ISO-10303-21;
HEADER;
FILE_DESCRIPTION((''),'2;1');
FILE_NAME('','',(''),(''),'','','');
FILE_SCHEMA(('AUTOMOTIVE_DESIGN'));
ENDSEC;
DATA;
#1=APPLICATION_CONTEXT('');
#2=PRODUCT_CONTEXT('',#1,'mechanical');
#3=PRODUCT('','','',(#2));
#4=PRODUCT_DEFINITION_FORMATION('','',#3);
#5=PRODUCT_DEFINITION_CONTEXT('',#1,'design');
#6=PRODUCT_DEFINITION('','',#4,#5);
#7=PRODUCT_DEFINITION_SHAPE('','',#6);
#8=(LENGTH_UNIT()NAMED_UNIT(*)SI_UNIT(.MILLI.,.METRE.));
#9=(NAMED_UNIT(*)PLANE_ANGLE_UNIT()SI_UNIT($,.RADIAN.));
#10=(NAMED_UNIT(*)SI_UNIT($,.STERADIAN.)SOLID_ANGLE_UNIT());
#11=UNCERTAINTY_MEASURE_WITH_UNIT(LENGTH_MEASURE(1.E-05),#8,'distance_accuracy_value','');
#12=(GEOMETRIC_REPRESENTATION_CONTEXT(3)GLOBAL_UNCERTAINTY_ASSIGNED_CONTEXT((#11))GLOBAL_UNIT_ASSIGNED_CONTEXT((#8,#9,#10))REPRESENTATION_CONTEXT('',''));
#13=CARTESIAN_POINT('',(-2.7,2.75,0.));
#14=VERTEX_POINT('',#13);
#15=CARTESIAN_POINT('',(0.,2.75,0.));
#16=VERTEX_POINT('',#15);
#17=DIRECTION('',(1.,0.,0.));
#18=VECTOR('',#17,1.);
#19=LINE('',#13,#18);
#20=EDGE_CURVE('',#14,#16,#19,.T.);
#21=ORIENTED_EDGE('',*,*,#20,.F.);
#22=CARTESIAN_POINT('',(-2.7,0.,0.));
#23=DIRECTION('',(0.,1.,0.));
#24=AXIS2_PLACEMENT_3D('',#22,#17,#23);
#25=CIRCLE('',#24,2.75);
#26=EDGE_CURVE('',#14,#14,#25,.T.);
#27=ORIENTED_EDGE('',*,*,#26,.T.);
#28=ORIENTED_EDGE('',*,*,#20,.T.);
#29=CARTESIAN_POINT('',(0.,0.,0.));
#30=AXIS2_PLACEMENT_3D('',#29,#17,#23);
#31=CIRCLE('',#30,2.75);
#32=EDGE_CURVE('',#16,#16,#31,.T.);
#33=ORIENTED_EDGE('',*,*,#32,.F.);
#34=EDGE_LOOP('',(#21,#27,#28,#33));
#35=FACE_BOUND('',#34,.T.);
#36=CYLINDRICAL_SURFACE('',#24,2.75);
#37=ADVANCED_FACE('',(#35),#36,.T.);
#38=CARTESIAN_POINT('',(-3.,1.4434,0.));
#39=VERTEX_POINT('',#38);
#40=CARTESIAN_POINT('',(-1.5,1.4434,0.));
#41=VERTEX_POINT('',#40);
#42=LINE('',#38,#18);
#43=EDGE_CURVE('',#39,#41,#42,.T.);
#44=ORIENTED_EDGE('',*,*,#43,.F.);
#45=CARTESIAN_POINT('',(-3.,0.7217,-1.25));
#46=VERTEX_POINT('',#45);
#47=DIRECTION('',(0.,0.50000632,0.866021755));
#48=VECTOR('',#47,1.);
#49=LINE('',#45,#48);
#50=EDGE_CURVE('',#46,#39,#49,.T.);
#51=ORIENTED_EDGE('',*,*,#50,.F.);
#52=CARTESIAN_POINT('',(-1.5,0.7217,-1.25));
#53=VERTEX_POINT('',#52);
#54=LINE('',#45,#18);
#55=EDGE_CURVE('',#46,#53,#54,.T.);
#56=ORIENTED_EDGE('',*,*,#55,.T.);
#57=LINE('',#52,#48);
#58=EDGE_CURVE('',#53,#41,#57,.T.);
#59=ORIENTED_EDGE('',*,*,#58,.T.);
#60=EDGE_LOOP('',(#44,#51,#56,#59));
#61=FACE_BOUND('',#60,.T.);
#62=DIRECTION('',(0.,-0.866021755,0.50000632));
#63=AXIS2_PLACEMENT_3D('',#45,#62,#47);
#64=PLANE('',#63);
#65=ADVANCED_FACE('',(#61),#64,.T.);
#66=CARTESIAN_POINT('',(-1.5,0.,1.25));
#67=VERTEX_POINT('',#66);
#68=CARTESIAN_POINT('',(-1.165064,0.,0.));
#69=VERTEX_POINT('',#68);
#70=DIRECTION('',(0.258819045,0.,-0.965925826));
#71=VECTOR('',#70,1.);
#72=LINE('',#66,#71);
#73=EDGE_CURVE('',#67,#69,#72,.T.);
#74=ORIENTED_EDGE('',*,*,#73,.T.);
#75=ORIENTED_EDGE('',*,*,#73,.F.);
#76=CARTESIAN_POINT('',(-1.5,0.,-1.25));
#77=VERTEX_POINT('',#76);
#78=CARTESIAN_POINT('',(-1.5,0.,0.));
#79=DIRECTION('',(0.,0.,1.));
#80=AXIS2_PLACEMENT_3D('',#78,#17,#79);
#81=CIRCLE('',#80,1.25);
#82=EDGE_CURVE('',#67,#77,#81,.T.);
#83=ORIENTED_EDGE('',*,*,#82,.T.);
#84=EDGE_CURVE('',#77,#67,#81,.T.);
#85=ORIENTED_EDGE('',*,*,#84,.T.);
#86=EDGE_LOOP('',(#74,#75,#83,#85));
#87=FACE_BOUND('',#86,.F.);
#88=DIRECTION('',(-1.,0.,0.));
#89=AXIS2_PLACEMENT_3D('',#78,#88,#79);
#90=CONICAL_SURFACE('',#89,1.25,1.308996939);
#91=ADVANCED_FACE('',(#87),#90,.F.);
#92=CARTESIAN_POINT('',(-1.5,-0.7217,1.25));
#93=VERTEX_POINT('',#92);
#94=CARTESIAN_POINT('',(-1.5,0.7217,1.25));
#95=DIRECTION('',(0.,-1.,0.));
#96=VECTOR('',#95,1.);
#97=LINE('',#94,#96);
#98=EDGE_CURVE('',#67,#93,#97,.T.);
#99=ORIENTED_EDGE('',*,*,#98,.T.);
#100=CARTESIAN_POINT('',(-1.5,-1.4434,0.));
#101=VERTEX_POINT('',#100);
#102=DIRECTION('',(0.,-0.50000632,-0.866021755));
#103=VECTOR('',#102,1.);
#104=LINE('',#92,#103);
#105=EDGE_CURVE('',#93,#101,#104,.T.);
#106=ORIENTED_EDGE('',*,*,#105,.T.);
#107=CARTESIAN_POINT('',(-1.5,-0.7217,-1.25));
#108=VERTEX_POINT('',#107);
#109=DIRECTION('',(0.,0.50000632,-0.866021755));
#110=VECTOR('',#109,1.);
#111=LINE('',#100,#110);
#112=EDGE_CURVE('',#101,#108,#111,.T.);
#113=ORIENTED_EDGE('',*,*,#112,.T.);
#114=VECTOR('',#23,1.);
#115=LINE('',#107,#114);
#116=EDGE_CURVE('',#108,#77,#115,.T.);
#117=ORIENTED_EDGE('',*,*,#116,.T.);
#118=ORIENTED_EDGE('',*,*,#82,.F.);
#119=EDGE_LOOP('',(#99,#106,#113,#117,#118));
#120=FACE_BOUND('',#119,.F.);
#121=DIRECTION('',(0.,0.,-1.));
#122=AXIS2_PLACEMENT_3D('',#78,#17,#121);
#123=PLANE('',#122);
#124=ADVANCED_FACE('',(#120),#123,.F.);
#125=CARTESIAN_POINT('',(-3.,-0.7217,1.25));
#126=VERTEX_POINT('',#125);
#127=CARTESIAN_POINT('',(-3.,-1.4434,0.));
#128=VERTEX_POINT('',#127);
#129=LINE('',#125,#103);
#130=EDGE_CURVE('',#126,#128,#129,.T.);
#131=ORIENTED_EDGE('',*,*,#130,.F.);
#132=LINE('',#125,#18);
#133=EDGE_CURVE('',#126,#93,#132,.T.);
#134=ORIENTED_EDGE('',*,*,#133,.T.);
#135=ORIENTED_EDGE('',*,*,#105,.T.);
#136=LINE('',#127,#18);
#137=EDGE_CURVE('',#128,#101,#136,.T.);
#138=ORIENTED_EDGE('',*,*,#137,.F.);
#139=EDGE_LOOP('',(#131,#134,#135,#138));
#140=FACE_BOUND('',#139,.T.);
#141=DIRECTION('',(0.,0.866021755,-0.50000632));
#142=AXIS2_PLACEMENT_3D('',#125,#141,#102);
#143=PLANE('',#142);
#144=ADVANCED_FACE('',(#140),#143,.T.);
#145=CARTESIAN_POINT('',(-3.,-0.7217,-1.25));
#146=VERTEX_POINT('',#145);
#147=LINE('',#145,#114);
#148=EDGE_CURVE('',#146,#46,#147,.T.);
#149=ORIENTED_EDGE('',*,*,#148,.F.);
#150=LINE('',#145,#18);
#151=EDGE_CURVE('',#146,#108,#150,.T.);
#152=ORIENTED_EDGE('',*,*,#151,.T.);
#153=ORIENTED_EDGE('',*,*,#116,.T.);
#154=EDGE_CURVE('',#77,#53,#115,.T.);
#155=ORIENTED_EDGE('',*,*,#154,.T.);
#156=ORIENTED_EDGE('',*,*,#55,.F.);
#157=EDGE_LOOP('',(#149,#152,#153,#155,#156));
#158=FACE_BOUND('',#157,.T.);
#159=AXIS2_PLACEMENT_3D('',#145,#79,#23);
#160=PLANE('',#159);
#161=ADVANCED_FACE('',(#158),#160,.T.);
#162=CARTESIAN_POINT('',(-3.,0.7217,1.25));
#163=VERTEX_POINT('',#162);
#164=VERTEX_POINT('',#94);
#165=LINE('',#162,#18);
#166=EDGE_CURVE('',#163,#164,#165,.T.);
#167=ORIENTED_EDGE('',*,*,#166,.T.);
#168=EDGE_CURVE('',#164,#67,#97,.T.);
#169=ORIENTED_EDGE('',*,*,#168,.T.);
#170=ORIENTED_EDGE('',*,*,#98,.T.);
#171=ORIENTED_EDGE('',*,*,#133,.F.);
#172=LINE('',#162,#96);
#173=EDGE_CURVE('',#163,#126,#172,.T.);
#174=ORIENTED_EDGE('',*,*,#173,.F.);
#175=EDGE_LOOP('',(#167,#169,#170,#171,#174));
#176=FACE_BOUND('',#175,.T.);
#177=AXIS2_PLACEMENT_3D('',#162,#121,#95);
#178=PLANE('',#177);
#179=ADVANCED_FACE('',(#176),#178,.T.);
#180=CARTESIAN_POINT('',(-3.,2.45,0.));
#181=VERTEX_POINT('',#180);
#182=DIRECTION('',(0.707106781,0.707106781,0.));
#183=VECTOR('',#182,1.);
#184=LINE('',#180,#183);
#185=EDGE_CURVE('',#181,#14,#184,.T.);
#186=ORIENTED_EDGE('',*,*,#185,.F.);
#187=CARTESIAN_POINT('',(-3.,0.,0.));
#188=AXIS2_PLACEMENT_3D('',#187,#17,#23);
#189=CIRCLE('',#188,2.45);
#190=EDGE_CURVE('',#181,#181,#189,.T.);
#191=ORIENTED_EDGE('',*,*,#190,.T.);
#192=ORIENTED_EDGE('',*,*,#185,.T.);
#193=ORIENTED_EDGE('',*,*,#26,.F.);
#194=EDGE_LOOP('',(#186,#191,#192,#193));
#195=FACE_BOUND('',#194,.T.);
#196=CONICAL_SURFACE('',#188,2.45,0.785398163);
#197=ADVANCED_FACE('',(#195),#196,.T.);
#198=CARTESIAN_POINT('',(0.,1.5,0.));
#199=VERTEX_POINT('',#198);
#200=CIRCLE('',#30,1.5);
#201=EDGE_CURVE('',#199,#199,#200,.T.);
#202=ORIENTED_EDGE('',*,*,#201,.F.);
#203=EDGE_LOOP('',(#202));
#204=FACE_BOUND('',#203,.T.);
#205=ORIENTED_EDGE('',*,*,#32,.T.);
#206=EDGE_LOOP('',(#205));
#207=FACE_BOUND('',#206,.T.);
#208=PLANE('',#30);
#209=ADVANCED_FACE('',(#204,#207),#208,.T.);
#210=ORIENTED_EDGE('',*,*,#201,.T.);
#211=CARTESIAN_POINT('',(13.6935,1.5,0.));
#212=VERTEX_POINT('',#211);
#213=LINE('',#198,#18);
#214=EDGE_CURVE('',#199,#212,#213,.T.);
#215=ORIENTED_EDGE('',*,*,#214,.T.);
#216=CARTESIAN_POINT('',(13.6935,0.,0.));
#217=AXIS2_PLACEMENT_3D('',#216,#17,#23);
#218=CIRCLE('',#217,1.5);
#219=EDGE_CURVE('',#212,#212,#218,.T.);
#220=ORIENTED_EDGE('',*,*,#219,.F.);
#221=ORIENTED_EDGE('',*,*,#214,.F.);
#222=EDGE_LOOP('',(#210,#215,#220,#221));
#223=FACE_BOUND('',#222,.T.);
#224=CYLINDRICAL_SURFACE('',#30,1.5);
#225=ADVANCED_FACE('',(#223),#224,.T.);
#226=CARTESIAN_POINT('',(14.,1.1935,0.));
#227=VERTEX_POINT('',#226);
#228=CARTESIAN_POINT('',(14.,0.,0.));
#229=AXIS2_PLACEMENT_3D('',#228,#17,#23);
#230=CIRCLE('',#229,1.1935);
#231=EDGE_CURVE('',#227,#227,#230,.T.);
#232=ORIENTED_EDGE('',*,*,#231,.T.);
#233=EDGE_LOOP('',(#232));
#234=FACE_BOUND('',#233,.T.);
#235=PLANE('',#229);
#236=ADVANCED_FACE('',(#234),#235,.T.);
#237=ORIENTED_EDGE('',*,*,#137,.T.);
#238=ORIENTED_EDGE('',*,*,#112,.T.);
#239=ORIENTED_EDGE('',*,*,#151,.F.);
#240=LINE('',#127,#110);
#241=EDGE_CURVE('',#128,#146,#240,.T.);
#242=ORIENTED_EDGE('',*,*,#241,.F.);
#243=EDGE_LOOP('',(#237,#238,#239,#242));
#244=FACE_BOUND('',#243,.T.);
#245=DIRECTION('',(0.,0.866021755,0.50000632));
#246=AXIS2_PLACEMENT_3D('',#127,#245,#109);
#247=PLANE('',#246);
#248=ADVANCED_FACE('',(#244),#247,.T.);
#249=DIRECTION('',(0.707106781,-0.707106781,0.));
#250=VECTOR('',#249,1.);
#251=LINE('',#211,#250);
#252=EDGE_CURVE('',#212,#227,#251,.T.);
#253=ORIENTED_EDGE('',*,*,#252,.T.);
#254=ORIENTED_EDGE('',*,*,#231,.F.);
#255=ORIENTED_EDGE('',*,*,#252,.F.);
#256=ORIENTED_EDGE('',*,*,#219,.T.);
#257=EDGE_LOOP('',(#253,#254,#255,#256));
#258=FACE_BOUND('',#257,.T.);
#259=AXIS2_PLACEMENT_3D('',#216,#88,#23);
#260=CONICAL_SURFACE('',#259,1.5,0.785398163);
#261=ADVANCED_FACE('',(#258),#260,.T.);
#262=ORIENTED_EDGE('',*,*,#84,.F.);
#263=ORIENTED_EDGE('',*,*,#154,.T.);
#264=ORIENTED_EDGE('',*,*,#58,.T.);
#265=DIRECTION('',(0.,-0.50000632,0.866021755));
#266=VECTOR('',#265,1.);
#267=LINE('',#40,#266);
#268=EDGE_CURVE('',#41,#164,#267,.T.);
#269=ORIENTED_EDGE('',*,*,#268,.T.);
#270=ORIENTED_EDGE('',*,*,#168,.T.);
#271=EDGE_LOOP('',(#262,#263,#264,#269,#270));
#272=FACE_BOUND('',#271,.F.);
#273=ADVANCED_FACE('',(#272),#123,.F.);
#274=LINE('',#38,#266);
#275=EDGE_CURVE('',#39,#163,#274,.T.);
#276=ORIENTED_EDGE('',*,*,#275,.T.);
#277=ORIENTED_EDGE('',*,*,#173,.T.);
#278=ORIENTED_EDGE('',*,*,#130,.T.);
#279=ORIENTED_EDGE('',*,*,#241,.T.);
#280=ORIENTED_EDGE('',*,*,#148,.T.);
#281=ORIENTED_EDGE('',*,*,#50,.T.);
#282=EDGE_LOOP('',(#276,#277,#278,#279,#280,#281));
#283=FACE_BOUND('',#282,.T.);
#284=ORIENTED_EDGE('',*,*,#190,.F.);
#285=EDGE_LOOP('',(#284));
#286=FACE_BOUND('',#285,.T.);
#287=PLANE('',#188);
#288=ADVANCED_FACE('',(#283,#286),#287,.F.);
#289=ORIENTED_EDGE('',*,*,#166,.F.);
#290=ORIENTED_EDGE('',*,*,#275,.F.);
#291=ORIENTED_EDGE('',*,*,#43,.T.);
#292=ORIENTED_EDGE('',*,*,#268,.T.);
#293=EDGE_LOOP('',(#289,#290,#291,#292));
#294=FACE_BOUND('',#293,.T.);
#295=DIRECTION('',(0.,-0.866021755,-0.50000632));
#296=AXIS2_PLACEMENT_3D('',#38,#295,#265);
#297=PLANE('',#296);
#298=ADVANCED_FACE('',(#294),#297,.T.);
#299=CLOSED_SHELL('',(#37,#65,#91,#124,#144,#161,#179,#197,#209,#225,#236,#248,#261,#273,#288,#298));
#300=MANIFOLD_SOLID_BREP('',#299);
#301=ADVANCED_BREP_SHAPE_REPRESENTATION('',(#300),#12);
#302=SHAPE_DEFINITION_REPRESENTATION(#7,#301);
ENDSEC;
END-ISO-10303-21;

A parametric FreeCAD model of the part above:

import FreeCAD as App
import Part
import Sketcher
Q = App.Units.Quantity


def add_polygon(sketch, points):
    """Adds a closed chain of lines whose ends are joined by coincident constraints."""
    first, n = sketch.GeometryCount, len(points)
    for a, b in zip(points, points[1:] + points[:1]):
        sketch.addGeometry(Part.LineSegment(App.Vector(*a, 0), App.Vector(*b, 0)), False)
    for i in range(n):
        sketch.addConstraint(Sketcher.Constraint("Coincident", first + i, 2, first + (i + 1) % n, 1))

doc = App.newDocument("Part")
body = doc.addObject("PartDesign::Body", "Body")

# Sketch on XY plane
sketch1 = doc.addObject("Sketcher::SketchObject", "Sketch")
body.addObject(sketch1)
sketch1.AttachmentSupport = (doc.XY_Plane, [""])
sketch1.MapMode = "FlatFace"
add_polygon(sketch1, [(-3, 0), (14, 0), (14, 1.19), (13.69, 1.5), (0, 1.5), (0, 2.75), (-2.7, 2.75), (-3, 2.45)])  # lines 0-7
sketch1.addConstraint([
    Sketcher.Constraint("Horizontal", 0),
    Sketcher.Constraint("Vertical", 1),
    Sketcher.Constraint("Horizontal", 3),
    Sketcher.Constraint("Vertical", 4),
    Sketcher.Constraint("Horizontal", 5),
    Sketcher.Constraint("Vertical", 7),
    Sketcher.Constraint("PointOnObject", 0, 2, -1),
    Sketcher.Constraint("PointOnObject", 3, 2, -2),
    Sketcher.Constraint("Perpendicular", 2, 6),
    Sketcher.Constraint("DistanceX", 0, 1, 0, 2, Q("17 mm")),
    Sketcher.Constraint("Angle", 2, Q("135 deg")),
    Sketcher.Constraint("DistanceX", 5, 2, 5, 1, Q("2.7 mm")),
    Sketcher.Constraint("DistanceX", -1, 1, 0, 2, Q("14 mm")),
    Sketcher.Constraint("DistanceY", 4, 1, 4, 2, Q("1.25 mm")),
    Sketcher.Constraint("DistanceY", 7, 2, 7, 1, Q("2.45 mm")),
    Sketcher.Constraint("DistanceX", 3, 2, 3, 1, Q("13.6935 mm")),
])
revolution = doc.addObject("PartDesign::Revolution", "Revolution")
body.addObject(revolution)
revolution.Profile = sketch1
revolution.ReferenceAxis = (sketch1, ["H_Axis"])
revolution.Angle = 360

# Sketch on YZ plane
sketch2 = doc.addObject("Sketcher::SketchObject", "Sketch001")
body.addObject(sketch2)
sketch2.AttachmentSupport = (doc.YZ_Plane, [""])
sketch2.MapMode = "FlatFace"
sketch2.AttachmentOffset = App.Placement(App.Vector(0, 0, -3), App.Rotation())
sketch2.addGeometry(Part.Circle(App.Vector(0, 0, 0), App.Vector(0, 0, 1), 1.2), False)
sketch2.addConstraint([
    Sketcher.Constraint("Coincident", 0, 3, -1, 1),
    Sketcher.Constraint("Diameter", 0, Q("2.5 mm")),
])
doc.recompute()
hole = doc.addObject("PartDesign::Hole", "Hole")
body.addObject(hole)
hole.Profile = sketch2
hole.ThreadType = "None"
hole.Diameter = 2.5
hole.DepthType = "Dimension"
hole.Depth = 1.5
hole.DrillPoint = "Angled"
hole.DrillPointAngle = 150
hole.Reversed = True

# Sketch on YZ plane
sketch3 = doc.addObject("Sketcher::SketchObject", "Sketch002")
body.addObject(sketch3)
sketch3.AttachmentSupport = (doc.YZ_Plane, [""])
sketch3.MapMode = "FlatFace"
sketch3.AttachmentOffset = App.Placement(App.Vector(0, 0, -3), App.Rotation())
add_polygon(sketch3, [(0.7, 1.2), (-0.7, 1.2), (-1.4, 0), (-0.7, -1.2), (0.7, -1.2), (1.4, 0)])  # lines 0-5
sketch3.addConstraint([
    Sketcher.Constraint("Horizontal", 0),
    Sketcher.Constraint("Horizontal", 3),
    Sketcher.Constraint("Symmetric", 0, 2, 3, 2, -1, 1),
    Sketcher.Constraint("Symmetric", 1, 2, 4, 2, -1, 1),
    Sketcher.Constraint("PointOnObject", 1, 2, -1),
    Sketcher.Constraint("Parallel", 2, 5),
    Sketcher.Constraint("Vertical", 0, 2, 2, 2),
    Sketcher.Constraint("Angle", 1, Q("-120.0004 deg")),
    Sketcher.Constraint("DistanceY", 2, 2, 0, 2, Q("2.5 mm")),
    Sketcher.Constraint("DistanceX", 0, 2, 0, 1, Q("1.4434 mm")),
])
pocket1 = doc.addObject("PartDesign::Pocket", "Pocket")
body.addObject(pocket1)
pocket1.Profile = sketch3
pocket1.Length = 1.5
pocket1.Reversed = True

doc.recompute()
